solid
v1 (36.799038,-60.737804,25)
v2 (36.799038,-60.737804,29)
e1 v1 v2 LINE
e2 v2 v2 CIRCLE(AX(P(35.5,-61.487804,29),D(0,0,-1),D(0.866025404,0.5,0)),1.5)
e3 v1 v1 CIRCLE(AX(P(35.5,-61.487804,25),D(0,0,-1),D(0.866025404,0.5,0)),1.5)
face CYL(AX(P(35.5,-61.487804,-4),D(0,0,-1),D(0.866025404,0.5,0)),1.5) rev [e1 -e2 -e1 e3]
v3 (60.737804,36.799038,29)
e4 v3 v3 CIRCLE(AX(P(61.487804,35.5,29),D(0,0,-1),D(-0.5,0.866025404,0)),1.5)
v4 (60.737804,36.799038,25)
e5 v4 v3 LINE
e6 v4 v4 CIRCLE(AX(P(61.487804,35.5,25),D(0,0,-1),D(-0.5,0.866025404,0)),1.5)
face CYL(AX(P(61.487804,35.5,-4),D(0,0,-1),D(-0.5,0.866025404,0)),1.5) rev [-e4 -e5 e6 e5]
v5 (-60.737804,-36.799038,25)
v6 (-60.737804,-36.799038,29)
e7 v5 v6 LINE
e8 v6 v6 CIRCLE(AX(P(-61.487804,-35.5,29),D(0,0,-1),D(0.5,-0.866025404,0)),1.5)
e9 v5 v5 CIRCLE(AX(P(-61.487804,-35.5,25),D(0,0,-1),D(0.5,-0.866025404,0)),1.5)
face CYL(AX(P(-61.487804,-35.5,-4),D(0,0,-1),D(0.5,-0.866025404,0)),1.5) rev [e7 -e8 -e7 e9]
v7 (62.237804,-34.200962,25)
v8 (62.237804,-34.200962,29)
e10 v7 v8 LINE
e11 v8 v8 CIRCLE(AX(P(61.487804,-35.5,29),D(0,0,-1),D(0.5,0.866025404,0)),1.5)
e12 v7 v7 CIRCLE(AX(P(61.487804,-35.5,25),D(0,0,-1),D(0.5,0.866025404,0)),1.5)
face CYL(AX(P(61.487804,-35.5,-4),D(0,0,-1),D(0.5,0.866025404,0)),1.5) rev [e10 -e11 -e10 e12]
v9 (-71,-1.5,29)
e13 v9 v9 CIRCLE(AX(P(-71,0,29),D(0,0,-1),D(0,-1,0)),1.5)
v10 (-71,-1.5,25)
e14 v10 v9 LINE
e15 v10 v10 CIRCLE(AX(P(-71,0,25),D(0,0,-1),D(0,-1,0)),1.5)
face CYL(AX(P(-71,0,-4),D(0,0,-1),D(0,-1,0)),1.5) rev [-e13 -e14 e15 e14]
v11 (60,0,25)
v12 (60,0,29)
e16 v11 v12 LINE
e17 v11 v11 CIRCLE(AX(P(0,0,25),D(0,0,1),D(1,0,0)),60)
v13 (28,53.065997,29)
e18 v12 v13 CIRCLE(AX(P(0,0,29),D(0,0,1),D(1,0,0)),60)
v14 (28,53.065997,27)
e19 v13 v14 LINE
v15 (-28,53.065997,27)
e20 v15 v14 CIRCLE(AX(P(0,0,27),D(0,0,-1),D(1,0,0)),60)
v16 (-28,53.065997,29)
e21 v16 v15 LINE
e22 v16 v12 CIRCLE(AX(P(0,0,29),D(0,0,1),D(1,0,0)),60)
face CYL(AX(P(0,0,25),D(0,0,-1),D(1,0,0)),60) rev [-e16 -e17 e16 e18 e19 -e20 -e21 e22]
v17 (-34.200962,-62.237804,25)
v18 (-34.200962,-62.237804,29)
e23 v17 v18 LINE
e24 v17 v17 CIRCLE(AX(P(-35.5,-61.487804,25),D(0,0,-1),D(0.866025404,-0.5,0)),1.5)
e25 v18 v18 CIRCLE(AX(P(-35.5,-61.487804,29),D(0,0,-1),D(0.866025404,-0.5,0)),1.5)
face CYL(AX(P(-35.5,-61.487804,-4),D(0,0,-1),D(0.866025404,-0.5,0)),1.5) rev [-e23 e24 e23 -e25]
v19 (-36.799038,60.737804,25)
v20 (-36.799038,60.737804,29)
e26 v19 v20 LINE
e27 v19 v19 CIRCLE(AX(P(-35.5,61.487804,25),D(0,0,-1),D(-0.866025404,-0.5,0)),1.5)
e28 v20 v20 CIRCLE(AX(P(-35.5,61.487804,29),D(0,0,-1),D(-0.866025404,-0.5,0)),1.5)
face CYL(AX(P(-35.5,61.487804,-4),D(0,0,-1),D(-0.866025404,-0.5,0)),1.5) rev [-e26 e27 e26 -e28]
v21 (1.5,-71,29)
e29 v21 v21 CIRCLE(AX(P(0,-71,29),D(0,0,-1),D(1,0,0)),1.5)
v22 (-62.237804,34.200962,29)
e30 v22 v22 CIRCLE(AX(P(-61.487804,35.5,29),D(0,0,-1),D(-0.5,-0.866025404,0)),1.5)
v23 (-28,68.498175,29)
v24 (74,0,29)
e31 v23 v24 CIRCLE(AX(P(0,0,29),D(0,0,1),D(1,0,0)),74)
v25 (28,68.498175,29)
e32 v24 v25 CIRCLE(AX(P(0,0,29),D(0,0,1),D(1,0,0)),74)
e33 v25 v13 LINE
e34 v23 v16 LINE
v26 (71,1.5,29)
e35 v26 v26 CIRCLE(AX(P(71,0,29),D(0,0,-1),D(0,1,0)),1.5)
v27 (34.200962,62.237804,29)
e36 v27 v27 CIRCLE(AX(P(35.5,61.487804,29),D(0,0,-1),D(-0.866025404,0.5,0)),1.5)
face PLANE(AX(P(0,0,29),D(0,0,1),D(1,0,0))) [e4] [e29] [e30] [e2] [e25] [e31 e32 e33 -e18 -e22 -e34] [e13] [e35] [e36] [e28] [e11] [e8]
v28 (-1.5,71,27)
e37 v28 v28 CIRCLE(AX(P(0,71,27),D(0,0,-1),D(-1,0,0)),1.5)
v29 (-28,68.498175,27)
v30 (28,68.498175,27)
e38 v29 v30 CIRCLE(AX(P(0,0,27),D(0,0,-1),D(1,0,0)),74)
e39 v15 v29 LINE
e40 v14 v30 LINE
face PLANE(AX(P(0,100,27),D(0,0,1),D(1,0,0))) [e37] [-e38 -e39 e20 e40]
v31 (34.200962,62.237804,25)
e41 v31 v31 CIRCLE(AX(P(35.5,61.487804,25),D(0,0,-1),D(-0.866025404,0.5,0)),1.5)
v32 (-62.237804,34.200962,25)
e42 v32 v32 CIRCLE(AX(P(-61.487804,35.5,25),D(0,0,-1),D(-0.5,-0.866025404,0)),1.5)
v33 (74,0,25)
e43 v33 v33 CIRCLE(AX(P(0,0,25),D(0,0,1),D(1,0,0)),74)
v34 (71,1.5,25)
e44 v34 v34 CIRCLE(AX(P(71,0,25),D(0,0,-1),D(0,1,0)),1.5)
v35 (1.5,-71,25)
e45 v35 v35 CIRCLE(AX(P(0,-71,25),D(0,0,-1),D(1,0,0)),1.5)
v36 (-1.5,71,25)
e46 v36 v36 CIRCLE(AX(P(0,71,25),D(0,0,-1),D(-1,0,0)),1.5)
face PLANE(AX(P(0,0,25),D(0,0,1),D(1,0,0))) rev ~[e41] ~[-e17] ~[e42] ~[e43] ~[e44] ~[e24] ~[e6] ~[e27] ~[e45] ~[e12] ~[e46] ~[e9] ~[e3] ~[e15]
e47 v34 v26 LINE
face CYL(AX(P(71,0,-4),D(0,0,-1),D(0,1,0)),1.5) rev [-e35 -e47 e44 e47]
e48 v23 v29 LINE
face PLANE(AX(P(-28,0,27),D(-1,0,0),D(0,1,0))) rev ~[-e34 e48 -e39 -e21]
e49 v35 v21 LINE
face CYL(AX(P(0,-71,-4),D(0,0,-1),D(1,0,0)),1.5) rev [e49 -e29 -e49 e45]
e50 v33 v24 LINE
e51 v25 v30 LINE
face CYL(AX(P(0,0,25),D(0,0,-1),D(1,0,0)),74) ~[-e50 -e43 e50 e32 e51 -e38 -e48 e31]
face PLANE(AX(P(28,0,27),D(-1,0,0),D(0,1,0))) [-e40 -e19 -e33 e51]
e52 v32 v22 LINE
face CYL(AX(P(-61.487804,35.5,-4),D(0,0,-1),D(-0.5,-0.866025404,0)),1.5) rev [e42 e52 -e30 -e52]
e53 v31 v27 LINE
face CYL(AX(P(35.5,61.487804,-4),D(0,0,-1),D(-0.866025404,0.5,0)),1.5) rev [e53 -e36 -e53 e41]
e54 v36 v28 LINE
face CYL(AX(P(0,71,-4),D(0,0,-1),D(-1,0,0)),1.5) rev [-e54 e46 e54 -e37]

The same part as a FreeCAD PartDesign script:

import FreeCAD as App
import Part
import Sketcher

V = App.Vector
Q = App.Units.Quantity


def add_polygon(sketch, points):
    """Adds a closed chain of lines whose ends are joined by coincident constraints."""
    first, n = sketch.GeometryCount, len(points)
    for a, b in zip(points, points[1:] + points[:1]):
        sketch.addGeometry(Part.LineSegment(App.Vector(*a, 0), App.Vector(*b, 0)), False)
    for i in range(n):
        sketch.addConstraint(Sketcher.Constraint("Coincident", first + i, 2, first + (i + 1) % n, 1))

doc = App.newDocument("Part")
body = doc.addObject("PartDesign::Body", "Body")

sketch1 = body.newObject("Sketcher::SketchObject", "Sketch")
sketch1.AttachmentSupport = (doc.getObject("XY_Plane"), [""])
sketch1.MapMode = "FlatFace"
sketch1.AttachmentOffset = App.Placement(V(0, 0, 27), App.Rotation())
add_polygon(sketch1, [(-28, 200), (-28, 0), (28, 0), (28, 200)])
sketch1.addConstraint(Sketcher.Constraint("Vertical", 0))
sketch1.addConstraint(Sketcher.Constraint("Horizontal", 1))
sketch1.addConstraint(Sketcher.Constraint("Vertical", 2))
sketch1.addConstraint(Sketcher.Constraint("Horizontal", 3))
sketch1.addConstraint(Sketcher.Constraint("Symmetric", 0, 2, 1, 2, -1, 1))
sketch1.addConstraint(Sketcher.Constraint("DistanceX", 1, 1, 1, 2, Q("56 mm")))
sketch1.addConstraint(Sketcher.Constraint("DistanceY", 0, 2, 0, 1, Q("200 mm")))
pad1 = body.newObject("PartDesign::Pad", "Pad")
pad1.Profile = sketch1
pad1.Length = 47
body2 = doc.addObject("PartDesign::Body", "Body001")

sketch2 = body2.newObject("Sketcher::SketchObject", "Sketch001")
sketch2.AttachmentSupport = (doc.getObject("XY_Plane001"), [""])
sketch2.MapMode = "FlatFace"
sketch2.addGeometry(Part.Circle(V(0, 0, 0), V(0, 0, 1), 1.5), False)
sketch2.addConstraint(Sketcher.Constraint("Coincident", 0, 3, -1, 1))
sketch2.addConstraint(Sketcher.Constraint("Diameter", 0, Q("3 mm")))
pad2 = body2.newObject("PartDesign::Pad", "Pad001")
pad2.Profile = sketch2
pad2.Length = 72
body3 = doc.addObject("PartDesign::Body", "Body002")
doc.recompute()

body2.Placement = App.Placement(V(35.5, -61.487804, 0), App.Rotation(V(0, 0, 1), 30))
boolean = body3.newObject("PartDesign::Boolean", "Boolean")
boolean.Type = "Fuse"
boolean.addObjects([body2])
body4 = doc.addObject("PartDesign::Body", "Body003")

sketch3 = body4.newObject("Sketcher::SketchObject", "Sketch002")
sketch3.AttachmentSupport = (doc.getObject("XY_Plane003"), [""])
sketch3.MapMode = "FlatFace"
sketch3.addGeometry(Part.Circle(V(0, 0, 0), V(0, 0, 1), 1.5), False)
sketch3.addConstraint(Sketcher.Constraint("Coincident", 0, 3, -1, 1))
sketch3.addConstraint(Sketcher.Constraint("Diameter", 0, Q("3 mm")))
pad3 = body4.newObject("PartDesign::Pad", "Pad002")
pad3.Profile = sketch3
pad3.Length = 72
body5 = doc.addObject("PartDesign::Body", "Body004")
doc.recompute()

body4.Placement = App.Placement(V(61.487804, -35.5, 0), App.Rotation(V(0, 0, 1), 60))
boolean2 = body5.newObject("PartDesign::Boolean", "Boolean001")
boolean2.Type = "Fuse"
boolean2.addObjects([body4])
body6 = doc.addObject("PartDesign::Body", "Body005")

sketch4 = body6.newObject("Sketcher::SketchObject", "Sketch003")
sketch4.AttachmentSupport = (doc.getObject("XY_Plane005"), [""])
sketch4.MapMode = "FlatFace"
sketch4.addGeometry(Part.Circle(V(71, 0, 0), V(0, 0, 1), 1.5), False)
sketch4.addConstraint(Sketcher.Constraint("PointOnObject", 0, 3, -1))
sketch4.addConstraint(Sketcher.Constraint("Diameter", 0, Q("3 mm")))
sketch4.addConstraint(Sketcher.Constraint("DistanceX", -1, 1, 0, 3, Q("71 mm")))
pad4 = body6.newObject("PartDesign::Pad", "Pad003")
pad4.Profile = sketch4
pad4.Length = 72
body7 = doc.addObject("PartDesign::Body", "Body006")

sketch5 = body7.newObject("Sketcher::SketchObject", "Sketch004")
sketch5.AttachmentSupport = (doc.getObject("XY_Plane006"), [""])
sketch5.MapMode = "FlatFace"
sketch5.addGeometry(Part.Circle(V(0, 0, 0), V(0, 0, 1), 1.5), False)
sketch5.addConstraint(Sketcher.Constraint("Coincident", 0, 3, -1, 1))
sketch5.addConstraint(Sketcher.Constraint("Diameter", 0, Q("3 mm")))
pad5 = body7.newObject("PartDesign::Pad", "Pad004")
pad5.Profile = sketch5
pad5.Length = 72
body8 = doc.addObject("PartDesign::Body", "Body007")
doc.recompute()

body7.Placement = App.Placement(V(61.487804, 35.5, 0), App.Rotation(V(0, 0, 1), 120))
boolean3 = body8.newObject("PartDesign::Boolean", "Boolean002")
boolean3.Type = "Fuse"
boolean3.addObjects([body7])
body9 = doc.addObject("PartDesign::Body", "Body008")

sketch6 = body9.newObject("Sketcher::SketchObject", "Sketch005")
sketch6.AttachmentSupport = (doc.getObject("XY_Plane008"), [""])
sketch6.MapMode = "FlatFace"
sketch6.addGeometry(Part.Circle(V(0, 0, 0), V(0, 0, 1), 1.5), False)
sketch6.addConstraint(Sketcher.Constraint("Coincident", 0, 3, -1, 1))
sketch6.addConstraint(Sketcher.Constraint("Diameter", 0, Q("3 mm")))
pad6 = body9.newObject("PartDesign::Pad", "Pad005")
pad6.Profile = sketch6
pad6.Length = 72
body10 = doc.addObject("PartDesign::Body", "Body009")
doc.recompute()

body9.Placement = App.Placement(V(35.5, 61.487804, 0), App.Rotation(V(0, 0, 1), 150))
boolean4 = body10.newObject("PartDesign::Boolean", "Boolean003")
boolean4.Type = "Fuse"
boolean4.addObjects([body9])
body11 = doc.addObject("PartDesign::Body", "Body010")

sketch7 = body11.newObject("Sketcher::SketchObject", "Sketch006")
sketch7.AttachmentSupport = (doc.getObject("XY_Plane010"), [""])
sketch7.MapMode = "FlatFace"
sketch7.addGeometry(Part.Circle(V(0, 71, 0), V(0, 0, 1), 1.5), False)
sketch7.addConstraint(Sketcher.Constraint("PointOnObject", 0, 3, -2))
sketch7.addConstraint(Sketcher.Constraint("Diameter", 0, Q("3 mm")))
sketch7.addConstraint(Sketcher.Constraint("DistanceY", -1, 1, 0, 3, Q("71 mm")))
pad7 = body11.newObject("PartDesign::Pad", "Pad006")
pad7.Profile = sketch7
pad7.Length = 72
body12 = doc.addObject("PartDesign::Body", "Body011")

sketch8 = body12.newObject("Sketcher::SketchObject", "Sketch007")
sketch8.AttachmentSupport = (doc.getObject("XY_Plane011"), [""])
sketch8.MapMode = "FlatFace"
sketch8.addGeometry(Part.Circle(V(0, 0, 0), V(0, 0, 1), 1.5), False)
sketch8.addConstraint(Sketcher.Constraint("Coincident", 0, 3, -1, 1))
sketch8.addConstraint(Sketcher.Constraint("Diameter", 0, Q("3 mm")))
pad8 = body12.newObject("PartDesign::Pad", "Pad007")
pad8.Profile = sketch8
pad8.Length = 72
body13 = doc.addObject("PartDesign::Body", "Body012")
doc.recompute()

body12.Placement = App.Placement(V(-35.5, 61.487804, 0), App.Rotation(V(0, 0, 1), 210))
boolean5 = body13.newObject("PartDesign::Boolean", "Boolean004")
boolean5.Type = "Fuse"
boolean5.addObjects([body12])
body14 = doc.addObject("PartDesign::Body", "Body013")

sketch9 = body14.newObject("Sketcher::SketchObject", "Sketch008")
sketch9.AttachmentSupport = (doc.getObject("XY_Plane013"), [""])
sketch9.MapMode = "FlatFace"
sketch9.addGeometry(Part.Circle(V(0, 0, 0), V(0, 0, 1), 1.5), False)
sketch9.addConstraint(Sketcher.Constraint("Coincident", 0, 3, -1, 1))
sketch9.addConstraint(Sketcher.Constraint("Diameter", 0, Q("3 mm")))
pad9 = body14.newObject("PartDesign::Pad", "Pad008")
pad9.Profile = sketch9
pad9.Length = 72
body15 = doc.addObject("PartDesign::Body", "Body014")
doc.recompute()

body14.Placement = App.Placement(V(-61.487804, 35.5, 0), App.Rotation(V(0, 0, 1), 240))
boolean6 = body15.newObject("PartDesign::Boolean", "Boolean005")
boolean6.Type = "Fuse"
boolean6.addObjects([body14])
body16 = doc.addObject("PartDesign::Body", "Body015")

sketch10 = body16.newObject("Sketcher::SketchObject", "Sketch009")
sketch10.AttachmentSupport = (doc.getObject("XY_Plane015"), [""])
sketch10.MapMode = "FlatFace"
sketch10.addGeometry(Part.Circle(V(-71, 0, 0), V(0, 0, 1), 1.5), False)
sketch10.addConstraint(Sketcher.Constraint("PointOnObject", 0, 3, -1))
sketch10.addConstraint(Sketcher.Constraint("Diameter", 0, Q("3 mm")))
sketch10.addConstraint(Sketcher.Constraint("DistanceX", 0, 3, -1, 1, Q("71 mm")))
pad10 = body16.newObject("PartDesign::Pad", "Pad009")
pad10.Profile = sketch10
pad10.Length = 72
body17 = doc.addObject("PartDesign::Body", "Body016")

sketch11 = body17.newObject("Sketcher::SketchObject", "Sketch010")
sketch11.AttachmentSupport = (doc.getObject("XY_Plane016"), [""])
sketch11.MapMode = "FlatFace"
sketch11.addGeometry(Part.Circle(V(0, 0, 0), V(0, 0, 1), 1.5), False)
sketch11.addConstraint(Sketcher.Constraint("Coincident", 0, 3, -1, 1))
sketch11.addConstraint(Sketcher.Constraint("Diameter", 0, Q("3 mm")))
pad11 = body17.newObject("PartDesign::Pad", "Pad010")
pad11.Profile = sketch11
pad11.Length = 72
body18 = doc.addObject("PartDesign::Body", "Body017")
doc.recompute()

body17.Placement = App.Placement(V(-61.487804, -35.5, 0), App.Rotation(V(0, 0, -1), 60))
boolean7 = body18.newObject("PartDesign::Boolean", "Boolean006")
boolean7.Type = "Fuse"
boolean7.addObjects([body17])
body19 = doc.addObject("PartDesign::Body", "Body018")

sketch12 = body19.newObject("Sketcher::SketchObject", "Sketch011")
sketch12.AttachmentSupport = (doc.getObject("XY_Plane018"), [""])
sketch12.MapMode = "FlatFace"
sketch12.addGeometry(Part.Circle(V(0, 0, 0), V(0, 0, 1), 1.5), False)
sketch12.addConstraint(Sketcher.Constraint("Coincident", 0, 3, -1, 1))
sketch12.addConstraint(Sketcher.Constraint("Diameter", 0, Q("3 mm")))
pad12 = body19.newObject("PartDesign::Pad", "Pad011")
pad12.Profile = sketch12
pad12.Length = 72
body20 = doc.addObject("PartDesign::Body", "Body019")
doc.recompute()

body19.Placement = App.Placement(V(-35.5, -61.487804, 0), App.Rotation(V(0, 0, -1), 30))
boolean8 = body20.newObject("PartDesign::Boolean", "Boolean007")
boolean8.Type = "Fuse"
boolean8.addObjects([body19])
body21 = doc.addObject("PartDesign::Body", "Body020")
body21.AllowCompound = True

sketch13 = body21.newObject("Sketcher::SketchObject", "Sketch012")
sketch13.AttachmentSupport = (doc.getObject("XY_Plane020"), [""])
sketch13.MapMode = "FlatFace"
sketch13.addGeometry(Part.Circle(V(0, -71, 0), V(0, 0, 1), 1.5), False)
sketch13.addConstraint(Sketcher.Constraint("PointOnObject", 0, 3, -2))
sketch13.addConstraint(Sketcher.Constraint("Diameter", 0, Q("3 mm")))
sketch13.addConstraint(Sketcher.Constraint("DistanceY", 0, 3, -1, 1, Q("71 mm")))
pad13 = body21.newObject("PartDesign::Pad", "Pad012")
pad13.Profile = sketch13
pad13.Length = 72
doc.recompute()

boolean9 = body21.newObject("PartDesign::Boolean", "Boolean008")
boolean9.Type = "Fuse"
boolean9.addObjects([body3])
doc.recompute()

boolean10 = body21.newObject("PartDesign::Boolean", "Boolean009")
boolean10.Type = "Fuse"
boolean10.addObjects([body5])
doc.recompute()

boolean11 = body21.newObject("PartDesign::Boolean", "Boolean010")
boolean11.Type = "Fuse"
boolean11.addObjects([body6])
doc.recompute()

boolean12 = body21.newObject("PartDesign::Boolean", "Boolean011")
boolean12.Type = "Fuse"
boolean12.addObjects([body8])
doc.recompute()

boolean13 = body21.newObject("PartDesign::Boolean", "Boolean012")
boolean13.Type = "Fuse"
boolean13.addObjects([body10])
doc.recompute()

boolean14 = body21.newObject("PartDesign::Boolean", "Boolean013")
boolean14.Type = "Fuse"
boolean14.addObjects([body11])
doc.recompute()

boolean15 = body21.newObject("PartDesign::Boolean", "Boolean014")
boolean15.Type = "Fuse"
boolean15.addObjects([body13])
doc.recompute()

boolean16 = body21.newObject("PartDesign::Boolean", "Boolean015")
boolean16.Type = "Fuse"
boolean16.addObjects([body15])
doc.recompute()

boolean17 = body21.newObject("PartDesign::Boolean", "Boolean016")
boolean17.Type = "Fuse"
boolean17.addObjects([body16])
doc.recompute()

boolean18 = body21.newObject("PartDesign::Boolean", "Boolean017")
boolean18.Type = "Fuse"
boolean18.addObjects([body18])
doc.recompute()

boolean19 = body21.newObject("PartDesign::Boolean", "Boolean018")
boolean19.Type = "Fuse"
boolean19.addObjects([body20])
body22 = doc.addObject("PartDesign::Body", "Body021")
body22.AllowCompound = True
doc.recompute()

body21.Placement = App.Placement(V(0, 0, -4), App.Rotation(V(0, 0, 1), 0))
boolean20 = body22.newObject("PartDesign::Boolean", "Boolean019")
boolean20.Type = "Fuse"
boolean20.addObjects([body21])
body23 = doc.addObject("PartDesign::Body", "Body022")

sketch14 = body23.newObject("Sketcher::SketchObject", "Sketch013")
sketch14.AttachmentSupport = (doc.getObject("XY_Plane022"), [""])
sketch14.MapMode = "FlatFace"
sketch14.AttachmentOffset = App.Placement(V(0, 0, 25), App.Rotation())
sketch14.addGeometry(Part.Circle(V(0, 0, 0), V(0, 0, 1), 74), False)
sketch14.addGeometry(Part.Circle(V(0, 0, 0), V(0, 0, 1), 60), False)
sketch14.addConstraint(Sketcher.Constraint("Coincident", 0, 3, -1, 1))
sketch14.addConstraint(Sketcher.Constraint("Coincident", 1, 3, -1, 1))
sketch14.addConstraint(Sketcher.Constraint("Diameter", 0, Q("148 mm")))
sketch14.addConstraint(Sketcher.Constraint("Diameter", 1, Q("120 mm")))
pad14 = body23.newObject("PartDesign::Pad", "Pad013")
pad14.Profile = sketch14
pad14.Length = 4
doc.recompute()

boolean21 = body23.newObject("PartDesign::Boolean", "Boolean020")
boolean21.Type = "Cut"
boolean21.addObjects([body22])
doc.recompute()

boolean22 = body23.newObject("PartDesign::Boolean", "Boolean021")
boolean22.Type = "Cut"
boolean22.addObjects([body])

doc.recompute()
